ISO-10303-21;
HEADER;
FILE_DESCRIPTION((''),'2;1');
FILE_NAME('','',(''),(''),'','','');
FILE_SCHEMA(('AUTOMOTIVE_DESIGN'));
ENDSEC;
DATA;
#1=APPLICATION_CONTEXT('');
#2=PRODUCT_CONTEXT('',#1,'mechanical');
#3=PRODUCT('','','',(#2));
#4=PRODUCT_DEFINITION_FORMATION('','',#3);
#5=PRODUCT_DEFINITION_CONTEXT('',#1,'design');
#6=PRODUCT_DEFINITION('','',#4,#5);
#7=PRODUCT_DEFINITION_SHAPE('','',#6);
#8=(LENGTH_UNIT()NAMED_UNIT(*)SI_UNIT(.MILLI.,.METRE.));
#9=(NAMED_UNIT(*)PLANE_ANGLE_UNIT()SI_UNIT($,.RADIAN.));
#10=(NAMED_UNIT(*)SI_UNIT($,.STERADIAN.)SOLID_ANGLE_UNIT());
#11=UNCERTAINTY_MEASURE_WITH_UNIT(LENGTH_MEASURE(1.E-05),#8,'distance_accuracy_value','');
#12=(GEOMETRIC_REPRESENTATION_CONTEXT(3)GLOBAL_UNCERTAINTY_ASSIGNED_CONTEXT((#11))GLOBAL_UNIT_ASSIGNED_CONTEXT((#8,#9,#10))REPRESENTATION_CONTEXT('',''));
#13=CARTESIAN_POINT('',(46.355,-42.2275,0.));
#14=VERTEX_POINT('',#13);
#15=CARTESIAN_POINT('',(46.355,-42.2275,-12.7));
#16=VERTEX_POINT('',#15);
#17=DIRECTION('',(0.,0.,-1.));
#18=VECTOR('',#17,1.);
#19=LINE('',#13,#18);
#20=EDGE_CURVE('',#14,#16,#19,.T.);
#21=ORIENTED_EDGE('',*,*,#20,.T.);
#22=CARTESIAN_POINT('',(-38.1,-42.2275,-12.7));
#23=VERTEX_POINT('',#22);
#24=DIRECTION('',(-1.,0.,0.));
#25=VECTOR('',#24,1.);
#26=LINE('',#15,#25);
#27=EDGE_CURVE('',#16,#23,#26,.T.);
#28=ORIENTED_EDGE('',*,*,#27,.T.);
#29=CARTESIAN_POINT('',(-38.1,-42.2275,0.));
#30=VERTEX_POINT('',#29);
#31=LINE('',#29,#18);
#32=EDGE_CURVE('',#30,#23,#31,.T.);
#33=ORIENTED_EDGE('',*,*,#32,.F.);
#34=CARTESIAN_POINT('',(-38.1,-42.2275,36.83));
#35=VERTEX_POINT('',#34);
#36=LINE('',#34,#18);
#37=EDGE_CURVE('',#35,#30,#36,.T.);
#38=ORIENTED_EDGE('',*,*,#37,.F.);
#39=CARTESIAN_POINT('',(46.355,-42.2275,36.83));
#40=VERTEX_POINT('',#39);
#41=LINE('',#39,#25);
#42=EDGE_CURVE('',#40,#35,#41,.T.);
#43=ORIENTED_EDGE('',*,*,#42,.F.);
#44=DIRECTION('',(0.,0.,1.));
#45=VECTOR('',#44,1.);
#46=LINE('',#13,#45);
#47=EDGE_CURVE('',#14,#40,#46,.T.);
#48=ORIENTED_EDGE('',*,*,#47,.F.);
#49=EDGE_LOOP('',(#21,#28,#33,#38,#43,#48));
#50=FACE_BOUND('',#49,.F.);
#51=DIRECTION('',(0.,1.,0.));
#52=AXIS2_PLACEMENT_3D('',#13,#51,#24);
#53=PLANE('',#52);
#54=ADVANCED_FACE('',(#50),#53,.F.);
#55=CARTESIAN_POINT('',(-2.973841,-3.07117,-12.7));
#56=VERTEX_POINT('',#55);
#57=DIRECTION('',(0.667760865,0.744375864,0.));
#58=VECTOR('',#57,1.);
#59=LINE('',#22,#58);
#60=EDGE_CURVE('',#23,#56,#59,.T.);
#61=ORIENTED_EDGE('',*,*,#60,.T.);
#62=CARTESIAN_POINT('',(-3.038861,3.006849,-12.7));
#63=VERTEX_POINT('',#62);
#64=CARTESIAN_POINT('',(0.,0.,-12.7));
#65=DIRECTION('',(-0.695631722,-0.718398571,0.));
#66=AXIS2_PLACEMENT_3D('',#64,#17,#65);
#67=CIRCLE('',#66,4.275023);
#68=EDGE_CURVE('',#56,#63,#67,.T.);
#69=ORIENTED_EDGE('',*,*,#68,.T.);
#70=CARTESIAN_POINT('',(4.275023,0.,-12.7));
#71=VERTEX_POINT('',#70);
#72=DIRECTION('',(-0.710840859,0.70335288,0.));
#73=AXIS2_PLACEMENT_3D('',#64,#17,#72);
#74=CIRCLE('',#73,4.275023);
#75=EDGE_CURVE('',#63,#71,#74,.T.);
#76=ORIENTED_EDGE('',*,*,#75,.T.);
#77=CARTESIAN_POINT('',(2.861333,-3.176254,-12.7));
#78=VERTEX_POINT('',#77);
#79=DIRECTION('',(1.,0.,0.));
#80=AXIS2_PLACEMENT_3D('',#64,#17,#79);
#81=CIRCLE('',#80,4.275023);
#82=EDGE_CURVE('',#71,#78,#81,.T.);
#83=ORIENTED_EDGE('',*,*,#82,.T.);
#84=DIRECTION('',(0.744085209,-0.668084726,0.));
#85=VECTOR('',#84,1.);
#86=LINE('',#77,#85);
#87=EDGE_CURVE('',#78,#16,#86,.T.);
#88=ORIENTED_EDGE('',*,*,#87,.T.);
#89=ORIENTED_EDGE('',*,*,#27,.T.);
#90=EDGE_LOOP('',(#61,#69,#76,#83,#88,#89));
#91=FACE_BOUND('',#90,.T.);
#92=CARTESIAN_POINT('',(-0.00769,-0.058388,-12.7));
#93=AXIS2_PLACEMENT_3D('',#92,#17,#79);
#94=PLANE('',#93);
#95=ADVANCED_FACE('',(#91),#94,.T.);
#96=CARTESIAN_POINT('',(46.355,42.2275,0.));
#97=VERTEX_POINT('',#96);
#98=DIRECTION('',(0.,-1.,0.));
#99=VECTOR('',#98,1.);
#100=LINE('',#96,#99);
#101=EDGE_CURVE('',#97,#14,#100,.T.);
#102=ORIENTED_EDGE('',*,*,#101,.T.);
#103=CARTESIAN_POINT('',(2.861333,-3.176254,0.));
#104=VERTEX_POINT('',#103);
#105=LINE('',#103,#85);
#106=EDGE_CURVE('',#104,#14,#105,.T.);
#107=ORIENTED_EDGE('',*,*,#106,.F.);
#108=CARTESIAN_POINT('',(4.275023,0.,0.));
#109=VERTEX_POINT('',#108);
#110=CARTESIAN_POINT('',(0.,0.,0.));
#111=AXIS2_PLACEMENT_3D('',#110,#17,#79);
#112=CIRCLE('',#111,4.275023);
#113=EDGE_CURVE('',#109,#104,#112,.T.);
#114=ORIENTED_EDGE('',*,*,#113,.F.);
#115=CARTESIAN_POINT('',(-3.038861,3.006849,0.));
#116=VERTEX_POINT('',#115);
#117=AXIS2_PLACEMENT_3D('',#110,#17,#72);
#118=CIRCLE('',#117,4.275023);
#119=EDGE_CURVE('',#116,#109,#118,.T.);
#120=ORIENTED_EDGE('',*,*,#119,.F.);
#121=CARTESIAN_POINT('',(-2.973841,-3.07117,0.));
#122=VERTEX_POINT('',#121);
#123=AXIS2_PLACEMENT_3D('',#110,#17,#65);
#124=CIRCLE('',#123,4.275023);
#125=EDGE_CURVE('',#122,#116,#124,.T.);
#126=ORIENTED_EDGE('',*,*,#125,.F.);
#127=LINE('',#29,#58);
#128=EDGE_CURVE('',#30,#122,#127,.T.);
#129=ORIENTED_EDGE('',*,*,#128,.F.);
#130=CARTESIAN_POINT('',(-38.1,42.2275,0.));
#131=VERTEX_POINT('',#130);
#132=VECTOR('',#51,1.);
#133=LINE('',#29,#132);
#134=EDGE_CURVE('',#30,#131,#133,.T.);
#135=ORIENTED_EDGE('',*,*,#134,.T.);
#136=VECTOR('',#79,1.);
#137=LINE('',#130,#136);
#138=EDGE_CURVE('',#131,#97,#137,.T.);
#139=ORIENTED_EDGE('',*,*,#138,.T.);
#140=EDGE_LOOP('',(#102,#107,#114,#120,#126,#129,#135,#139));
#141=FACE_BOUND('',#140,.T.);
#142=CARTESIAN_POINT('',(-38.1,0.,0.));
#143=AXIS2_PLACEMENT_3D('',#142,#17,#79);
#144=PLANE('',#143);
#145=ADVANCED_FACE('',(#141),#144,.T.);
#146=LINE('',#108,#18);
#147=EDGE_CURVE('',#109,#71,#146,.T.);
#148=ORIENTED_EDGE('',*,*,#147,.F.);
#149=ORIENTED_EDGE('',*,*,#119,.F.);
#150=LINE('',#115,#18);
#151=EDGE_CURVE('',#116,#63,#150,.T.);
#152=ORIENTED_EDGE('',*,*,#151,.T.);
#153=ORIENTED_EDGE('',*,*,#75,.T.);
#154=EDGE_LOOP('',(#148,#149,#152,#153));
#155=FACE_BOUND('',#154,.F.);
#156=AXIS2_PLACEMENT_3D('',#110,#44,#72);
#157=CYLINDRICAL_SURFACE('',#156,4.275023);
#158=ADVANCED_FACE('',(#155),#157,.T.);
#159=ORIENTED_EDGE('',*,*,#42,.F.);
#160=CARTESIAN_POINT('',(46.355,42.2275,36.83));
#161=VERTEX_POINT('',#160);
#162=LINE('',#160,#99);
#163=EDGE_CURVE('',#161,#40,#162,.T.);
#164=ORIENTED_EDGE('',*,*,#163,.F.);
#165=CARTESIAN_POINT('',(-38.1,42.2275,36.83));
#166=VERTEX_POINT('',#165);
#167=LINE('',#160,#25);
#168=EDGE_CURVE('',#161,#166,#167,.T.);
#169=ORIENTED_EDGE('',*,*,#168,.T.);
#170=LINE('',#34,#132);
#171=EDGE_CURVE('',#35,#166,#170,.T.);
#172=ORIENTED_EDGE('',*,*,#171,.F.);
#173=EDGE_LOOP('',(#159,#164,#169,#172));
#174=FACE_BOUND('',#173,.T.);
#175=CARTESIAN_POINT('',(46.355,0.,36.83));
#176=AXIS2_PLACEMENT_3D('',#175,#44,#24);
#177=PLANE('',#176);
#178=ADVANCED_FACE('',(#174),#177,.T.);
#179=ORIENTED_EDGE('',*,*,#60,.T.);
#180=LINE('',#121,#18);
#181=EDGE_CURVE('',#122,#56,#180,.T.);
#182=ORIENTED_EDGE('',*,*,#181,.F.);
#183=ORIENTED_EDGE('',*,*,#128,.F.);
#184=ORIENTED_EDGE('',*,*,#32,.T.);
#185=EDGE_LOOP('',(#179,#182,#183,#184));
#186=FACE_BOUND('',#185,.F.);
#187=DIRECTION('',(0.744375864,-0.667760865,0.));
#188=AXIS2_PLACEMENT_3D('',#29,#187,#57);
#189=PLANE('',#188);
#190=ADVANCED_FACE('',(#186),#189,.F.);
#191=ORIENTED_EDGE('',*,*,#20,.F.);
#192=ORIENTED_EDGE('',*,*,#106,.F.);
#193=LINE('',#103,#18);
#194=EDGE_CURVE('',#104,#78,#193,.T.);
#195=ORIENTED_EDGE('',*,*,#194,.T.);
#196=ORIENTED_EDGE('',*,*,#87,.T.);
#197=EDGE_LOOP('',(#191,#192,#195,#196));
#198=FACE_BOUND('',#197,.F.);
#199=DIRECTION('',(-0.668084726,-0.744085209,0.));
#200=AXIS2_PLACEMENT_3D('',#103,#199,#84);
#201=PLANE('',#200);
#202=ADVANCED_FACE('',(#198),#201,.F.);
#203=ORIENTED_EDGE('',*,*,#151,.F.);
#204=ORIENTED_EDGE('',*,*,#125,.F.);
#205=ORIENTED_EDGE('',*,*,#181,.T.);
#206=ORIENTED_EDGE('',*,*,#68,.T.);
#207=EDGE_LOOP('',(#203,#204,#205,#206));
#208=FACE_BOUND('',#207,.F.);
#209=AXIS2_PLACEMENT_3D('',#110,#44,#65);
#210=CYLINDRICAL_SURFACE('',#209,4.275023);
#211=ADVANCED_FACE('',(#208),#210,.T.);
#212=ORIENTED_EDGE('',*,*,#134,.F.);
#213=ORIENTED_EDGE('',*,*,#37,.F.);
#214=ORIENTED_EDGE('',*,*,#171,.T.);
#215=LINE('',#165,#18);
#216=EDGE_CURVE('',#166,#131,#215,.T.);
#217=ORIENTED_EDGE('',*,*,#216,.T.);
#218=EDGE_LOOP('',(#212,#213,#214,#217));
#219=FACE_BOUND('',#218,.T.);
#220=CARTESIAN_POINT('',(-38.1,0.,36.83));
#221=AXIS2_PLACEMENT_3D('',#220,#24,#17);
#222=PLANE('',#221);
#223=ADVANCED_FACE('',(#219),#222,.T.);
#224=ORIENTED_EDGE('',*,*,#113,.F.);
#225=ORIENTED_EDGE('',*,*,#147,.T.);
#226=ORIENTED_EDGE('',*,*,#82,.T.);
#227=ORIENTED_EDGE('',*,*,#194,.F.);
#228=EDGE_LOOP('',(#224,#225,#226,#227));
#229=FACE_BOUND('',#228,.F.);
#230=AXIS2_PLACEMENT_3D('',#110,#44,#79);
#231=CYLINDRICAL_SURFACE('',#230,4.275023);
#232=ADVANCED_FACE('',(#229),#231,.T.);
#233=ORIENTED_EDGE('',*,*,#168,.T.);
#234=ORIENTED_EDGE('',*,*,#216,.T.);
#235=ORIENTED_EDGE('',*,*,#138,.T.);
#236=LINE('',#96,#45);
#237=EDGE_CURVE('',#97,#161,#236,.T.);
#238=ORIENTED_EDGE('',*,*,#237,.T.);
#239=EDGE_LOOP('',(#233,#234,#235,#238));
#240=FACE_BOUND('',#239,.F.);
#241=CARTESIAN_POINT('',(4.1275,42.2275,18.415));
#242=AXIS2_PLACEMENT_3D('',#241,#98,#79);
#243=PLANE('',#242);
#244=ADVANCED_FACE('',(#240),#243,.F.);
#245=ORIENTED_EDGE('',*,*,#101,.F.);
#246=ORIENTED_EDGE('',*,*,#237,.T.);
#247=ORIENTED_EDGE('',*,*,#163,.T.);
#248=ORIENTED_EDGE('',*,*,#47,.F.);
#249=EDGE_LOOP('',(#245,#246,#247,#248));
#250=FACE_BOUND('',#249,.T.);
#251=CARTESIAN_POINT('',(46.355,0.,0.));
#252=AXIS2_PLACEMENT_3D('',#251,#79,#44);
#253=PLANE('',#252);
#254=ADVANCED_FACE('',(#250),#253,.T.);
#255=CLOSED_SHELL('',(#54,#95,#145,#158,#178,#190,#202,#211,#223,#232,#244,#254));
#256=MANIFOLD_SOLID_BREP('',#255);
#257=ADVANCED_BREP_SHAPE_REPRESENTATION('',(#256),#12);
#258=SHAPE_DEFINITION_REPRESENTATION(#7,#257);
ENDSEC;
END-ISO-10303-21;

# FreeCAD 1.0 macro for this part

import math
import FreeCAD as App
import Part
import Sketcher

V = App.Vector
Q = App.Units.Quantity


def add_polygon(sketch, points):
    """Adds a closed chain of lines whose ends are joined by coincident constraints."""
    first, n = sketch.GeometryCount, len(points)
    for a, b in zip(points, points[1:] + points[:1]):
        sketch.addGeometry(Part.LineSegment(App.Vector(*a, 0), App.Vector(*b, 0)), False)
    for i in range(n):
        sketch.addConstraint(Sketcher.Constraint("Coincident", first + i, 2, first + (i + 1) % n, 1))

doc = App.newDocument("Part")
body = doc.addObject("PartDesign::Body", "Body")

# Sketch on XZ plane
sketch1 = body.newObject("Sketcher::SketchObject", "Sketch")
sketch1.AttachmentSupport = (doc.getObject("XZ_Plane"), [""])
sketch1.MapMode = "FlatFace"
add_polygon(sketch1, [(-38, 0), (46, 0), (46, 37), (-38, 37)])  # lines 0-3
sketch1.addConstraint([
    Sketcher.Constraint("Horizontal", 0),
    Sketcher.Constraint("Vertical", 1),
    Sketcher.Constraint("Horizontal", 2),
    Sketcher.Constraint("Vertical", 3),
    Sketcher.Constraint("PointOnObject", 0, 2, -1),
    Sketcher.Constraint("DistanceY", 1, 1, 1, 2, Q("1.45 in")),
    Sketcher.Constraint("DistanceX", 2, 2, -1, 1, Q("1.5 in")),
    Sketcher.Constraint("DistanceX", 0, 1, 0, 2, Q("3.325 in")),
])
pad1 = body.newObject("PartDesign::Pad", "Pad")
pad1.Profile = sketch1
pad1.Length = Q("3.325 in")
pad1.Midplane = True

# Sketch on XY plane
sketch2 = body.newObject("Sketcher::SketchObject", "Sketch001")
sketch2.AttachmentSupport = (doc.getObject("XY_Plane"), [""])
sketch2.MapMode = "FlatFace"
sketch2.addGeometry([
    Part.ArcOfCircle(Part.Circle(V(0, 0, 0), V(0, 0, 1), 4.3), math.radians(0), math.radians(135)),  # 0
    Part.ArcOfCircle(Part.Circle(V(0, 0, 0), V(0, 0, 1), 4.3), math.radians(-48), math.radians(0)),  # 1
    Part.LineSegment(V(2.9, -3.2, 0), V(46.4, -42.2, 0)),  # 2
    Part.LineSegment(V(46.4, -42.2, 0), V(-38.1, -42.2, 0)),  # 3
    Part.LineSegment(V(-38.1, -42.2, 0), V(-3, -3.1, 0)),  # 4
    Part.ArcOfCircle(Part.Circle(V(0, 0, 0), V(0, 0, 1), 4.3), math.radians(135), math.radians(226)),  # 5
], False)
sketch2.addConstraint([
    Sketcher.Constraint("Tangent", 0, 1, 1, 2),
    Sketcher.Constraint("Coincident", 1, 1, 2, 1),
    Sketcher.Constraint("Coincident", 2, 2, 3, 1),
    Sketcher.Constraint("Coincident", 3, 2, 4, 1),
    Sketcher.Constraint("Coincident", 4, 2, 5, 2),
    Sketcher.Constraint("Tangent", 5, 1, 0, 2),
    Sketcher.Constraint("Horizontal", 3),
    Sketcher.Constraint("Coincident", 0, 3, -1, 1),
    Sketcher.Constraint("Equal", 0, 1),
    Sketcher.Constraint("Equal", 1, 5),
    Sketcher.Constraint("PointOnObject", 0, 1, -1),
    Sketcher.Constraint("DistanceX", 3, 2, -1, 1, Q("1.5 in")),
    Sketcher.Constraint("DistanceX", 3, 2, 3, 1, Q("3.325 in")),
    Sketcher.Constraint("DistanceY", 2, 2, -1, 1, Q("1.6625 in")),
    Sketcher.Constraint("Radius", 0, Q("4.275023 mm")),
    Sketcher.Constraint("Distance", 4, Q("52.602901 mm")),
    Sketcher.Constraint("DistanceX", 5, 1, -1, 1, Q("3.038861 mm")),
    Sketcher.Constraint("DistanceX", 1, 1, 0, 1, Q("1.413689 mm")),
])
pad2 = body.newObject("PartDesign::Pad", "Pad001")
pad2.Profile = sketch2
pad2.Length = Q("0.5 in")
pad2.Reversed = True

doc.recompute()
